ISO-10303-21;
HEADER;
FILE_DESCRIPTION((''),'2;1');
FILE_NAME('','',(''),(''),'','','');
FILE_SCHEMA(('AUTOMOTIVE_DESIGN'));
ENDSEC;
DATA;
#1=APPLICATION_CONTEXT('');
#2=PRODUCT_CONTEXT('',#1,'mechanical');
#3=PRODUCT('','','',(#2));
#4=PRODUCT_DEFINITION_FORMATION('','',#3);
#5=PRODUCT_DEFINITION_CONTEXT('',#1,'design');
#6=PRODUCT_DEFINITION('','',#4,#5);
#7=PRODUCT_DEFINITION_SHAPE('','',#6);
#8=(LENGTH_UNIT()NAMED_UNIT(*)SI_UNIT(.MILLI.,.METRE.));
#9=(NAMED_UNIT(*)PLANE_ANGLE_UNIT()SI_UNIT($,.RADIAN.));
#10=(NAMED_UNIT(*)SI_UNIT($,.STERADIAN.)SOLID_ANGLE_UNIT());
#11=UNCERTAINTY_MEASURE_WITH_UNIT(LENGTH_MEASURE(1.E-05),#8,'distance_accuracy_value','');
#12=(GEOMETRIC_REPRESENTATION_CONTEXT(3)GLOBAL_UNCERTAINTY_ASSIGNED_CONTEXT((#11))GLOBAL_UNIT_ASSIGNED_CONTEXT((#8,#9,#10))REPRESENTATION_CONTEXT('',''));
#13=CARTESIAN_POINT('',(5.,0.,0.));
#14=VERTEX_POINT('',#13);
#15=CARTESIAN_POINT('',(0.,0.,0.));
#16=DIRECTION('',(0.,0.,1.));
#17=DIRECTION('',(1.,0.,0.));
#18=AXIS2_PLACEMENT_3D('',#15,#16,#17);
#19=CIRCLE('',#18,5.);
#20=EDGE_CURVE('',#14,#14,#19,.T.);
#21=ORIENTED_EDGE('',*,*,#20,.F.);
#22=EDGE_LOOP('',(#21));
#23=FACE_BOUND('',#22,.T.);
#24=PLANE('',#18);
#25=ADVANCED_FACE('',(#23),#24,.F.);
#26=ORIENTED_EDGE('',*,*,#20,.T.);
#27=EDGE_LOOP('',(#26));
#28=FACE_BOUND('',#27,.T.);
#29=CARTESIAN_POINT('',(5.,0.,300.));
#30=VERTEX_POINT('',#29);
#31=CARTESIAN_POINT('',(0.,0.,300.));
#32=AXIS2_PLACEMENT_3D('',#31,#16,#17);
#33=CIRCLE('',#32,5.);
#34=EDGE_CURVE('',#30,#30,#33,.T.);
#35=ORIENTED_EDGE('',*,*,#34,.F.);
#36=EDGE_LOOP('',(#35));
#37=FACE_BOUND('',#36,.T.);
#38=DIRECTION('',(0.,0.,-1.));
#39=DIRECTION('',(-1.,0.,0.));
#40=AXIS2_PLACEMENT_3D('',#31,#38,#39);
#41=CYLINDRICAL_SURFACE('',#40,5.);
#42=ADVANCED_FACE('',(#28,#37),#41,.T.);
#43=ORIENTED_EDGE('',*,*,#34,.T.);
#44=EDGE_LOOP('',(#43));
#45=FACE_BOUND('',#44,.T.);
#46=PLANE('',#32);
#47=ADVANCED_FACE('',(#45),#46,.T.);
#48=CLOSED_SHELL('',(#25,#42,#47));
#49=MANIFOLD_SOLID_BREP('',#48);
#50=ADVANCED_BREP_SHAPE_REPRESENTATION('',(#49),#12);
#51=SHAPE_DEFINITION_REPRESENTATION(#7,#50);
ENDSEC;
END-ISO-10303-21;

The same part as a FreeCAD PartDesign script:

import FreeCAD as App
import Part
import Sketcher

doc = App.newDocument("Part")
params = doc.addObject("Spreadsheet::Sheet", "Params")
for row, (alias, value) in enumerate([
    ("sketch1_diameter", "10 mm"),
    ("pad1_length", "300 mm"),
], start=1):
    params.set(f"A{row}", alias)
    params.set(f"B{row}", "=" + value)
    params.setAlias(f"B{row}", alias)

body = doc.addObject("PartDesign::Body", "Body")

# Sketch on XY plane
sketch1 = doc.addObject("Sketcher::SketchObject", "Sketch")
body.addObject(sketch1)
sketch1.AttachmentSupport = (doc.XY_Plane, [""])
sketch1.MapMode = "FlatFace"
sketch1.addGeometry(Part.Circle(App.Vector(0, 0, 0), App.Vector(0, 0, 1), 5), False)
sketch1.addConstraint([
    Sketcher.Constraint("Coincident", 0, 3, -1, 1),
    Sketcher.Constraint("Diameter", 0, 10.0),
])
sketch1.setExpression("Constraints[1]", "Params.sketch1_diameter")
pad1 = doc.addObject("PartDesign::Pad", "Pad")
body.addObject(pad1)
pad1.Profile = sketch1
pad1.setExpression("Length", "Params.pad1_length")

doc.recompute()
